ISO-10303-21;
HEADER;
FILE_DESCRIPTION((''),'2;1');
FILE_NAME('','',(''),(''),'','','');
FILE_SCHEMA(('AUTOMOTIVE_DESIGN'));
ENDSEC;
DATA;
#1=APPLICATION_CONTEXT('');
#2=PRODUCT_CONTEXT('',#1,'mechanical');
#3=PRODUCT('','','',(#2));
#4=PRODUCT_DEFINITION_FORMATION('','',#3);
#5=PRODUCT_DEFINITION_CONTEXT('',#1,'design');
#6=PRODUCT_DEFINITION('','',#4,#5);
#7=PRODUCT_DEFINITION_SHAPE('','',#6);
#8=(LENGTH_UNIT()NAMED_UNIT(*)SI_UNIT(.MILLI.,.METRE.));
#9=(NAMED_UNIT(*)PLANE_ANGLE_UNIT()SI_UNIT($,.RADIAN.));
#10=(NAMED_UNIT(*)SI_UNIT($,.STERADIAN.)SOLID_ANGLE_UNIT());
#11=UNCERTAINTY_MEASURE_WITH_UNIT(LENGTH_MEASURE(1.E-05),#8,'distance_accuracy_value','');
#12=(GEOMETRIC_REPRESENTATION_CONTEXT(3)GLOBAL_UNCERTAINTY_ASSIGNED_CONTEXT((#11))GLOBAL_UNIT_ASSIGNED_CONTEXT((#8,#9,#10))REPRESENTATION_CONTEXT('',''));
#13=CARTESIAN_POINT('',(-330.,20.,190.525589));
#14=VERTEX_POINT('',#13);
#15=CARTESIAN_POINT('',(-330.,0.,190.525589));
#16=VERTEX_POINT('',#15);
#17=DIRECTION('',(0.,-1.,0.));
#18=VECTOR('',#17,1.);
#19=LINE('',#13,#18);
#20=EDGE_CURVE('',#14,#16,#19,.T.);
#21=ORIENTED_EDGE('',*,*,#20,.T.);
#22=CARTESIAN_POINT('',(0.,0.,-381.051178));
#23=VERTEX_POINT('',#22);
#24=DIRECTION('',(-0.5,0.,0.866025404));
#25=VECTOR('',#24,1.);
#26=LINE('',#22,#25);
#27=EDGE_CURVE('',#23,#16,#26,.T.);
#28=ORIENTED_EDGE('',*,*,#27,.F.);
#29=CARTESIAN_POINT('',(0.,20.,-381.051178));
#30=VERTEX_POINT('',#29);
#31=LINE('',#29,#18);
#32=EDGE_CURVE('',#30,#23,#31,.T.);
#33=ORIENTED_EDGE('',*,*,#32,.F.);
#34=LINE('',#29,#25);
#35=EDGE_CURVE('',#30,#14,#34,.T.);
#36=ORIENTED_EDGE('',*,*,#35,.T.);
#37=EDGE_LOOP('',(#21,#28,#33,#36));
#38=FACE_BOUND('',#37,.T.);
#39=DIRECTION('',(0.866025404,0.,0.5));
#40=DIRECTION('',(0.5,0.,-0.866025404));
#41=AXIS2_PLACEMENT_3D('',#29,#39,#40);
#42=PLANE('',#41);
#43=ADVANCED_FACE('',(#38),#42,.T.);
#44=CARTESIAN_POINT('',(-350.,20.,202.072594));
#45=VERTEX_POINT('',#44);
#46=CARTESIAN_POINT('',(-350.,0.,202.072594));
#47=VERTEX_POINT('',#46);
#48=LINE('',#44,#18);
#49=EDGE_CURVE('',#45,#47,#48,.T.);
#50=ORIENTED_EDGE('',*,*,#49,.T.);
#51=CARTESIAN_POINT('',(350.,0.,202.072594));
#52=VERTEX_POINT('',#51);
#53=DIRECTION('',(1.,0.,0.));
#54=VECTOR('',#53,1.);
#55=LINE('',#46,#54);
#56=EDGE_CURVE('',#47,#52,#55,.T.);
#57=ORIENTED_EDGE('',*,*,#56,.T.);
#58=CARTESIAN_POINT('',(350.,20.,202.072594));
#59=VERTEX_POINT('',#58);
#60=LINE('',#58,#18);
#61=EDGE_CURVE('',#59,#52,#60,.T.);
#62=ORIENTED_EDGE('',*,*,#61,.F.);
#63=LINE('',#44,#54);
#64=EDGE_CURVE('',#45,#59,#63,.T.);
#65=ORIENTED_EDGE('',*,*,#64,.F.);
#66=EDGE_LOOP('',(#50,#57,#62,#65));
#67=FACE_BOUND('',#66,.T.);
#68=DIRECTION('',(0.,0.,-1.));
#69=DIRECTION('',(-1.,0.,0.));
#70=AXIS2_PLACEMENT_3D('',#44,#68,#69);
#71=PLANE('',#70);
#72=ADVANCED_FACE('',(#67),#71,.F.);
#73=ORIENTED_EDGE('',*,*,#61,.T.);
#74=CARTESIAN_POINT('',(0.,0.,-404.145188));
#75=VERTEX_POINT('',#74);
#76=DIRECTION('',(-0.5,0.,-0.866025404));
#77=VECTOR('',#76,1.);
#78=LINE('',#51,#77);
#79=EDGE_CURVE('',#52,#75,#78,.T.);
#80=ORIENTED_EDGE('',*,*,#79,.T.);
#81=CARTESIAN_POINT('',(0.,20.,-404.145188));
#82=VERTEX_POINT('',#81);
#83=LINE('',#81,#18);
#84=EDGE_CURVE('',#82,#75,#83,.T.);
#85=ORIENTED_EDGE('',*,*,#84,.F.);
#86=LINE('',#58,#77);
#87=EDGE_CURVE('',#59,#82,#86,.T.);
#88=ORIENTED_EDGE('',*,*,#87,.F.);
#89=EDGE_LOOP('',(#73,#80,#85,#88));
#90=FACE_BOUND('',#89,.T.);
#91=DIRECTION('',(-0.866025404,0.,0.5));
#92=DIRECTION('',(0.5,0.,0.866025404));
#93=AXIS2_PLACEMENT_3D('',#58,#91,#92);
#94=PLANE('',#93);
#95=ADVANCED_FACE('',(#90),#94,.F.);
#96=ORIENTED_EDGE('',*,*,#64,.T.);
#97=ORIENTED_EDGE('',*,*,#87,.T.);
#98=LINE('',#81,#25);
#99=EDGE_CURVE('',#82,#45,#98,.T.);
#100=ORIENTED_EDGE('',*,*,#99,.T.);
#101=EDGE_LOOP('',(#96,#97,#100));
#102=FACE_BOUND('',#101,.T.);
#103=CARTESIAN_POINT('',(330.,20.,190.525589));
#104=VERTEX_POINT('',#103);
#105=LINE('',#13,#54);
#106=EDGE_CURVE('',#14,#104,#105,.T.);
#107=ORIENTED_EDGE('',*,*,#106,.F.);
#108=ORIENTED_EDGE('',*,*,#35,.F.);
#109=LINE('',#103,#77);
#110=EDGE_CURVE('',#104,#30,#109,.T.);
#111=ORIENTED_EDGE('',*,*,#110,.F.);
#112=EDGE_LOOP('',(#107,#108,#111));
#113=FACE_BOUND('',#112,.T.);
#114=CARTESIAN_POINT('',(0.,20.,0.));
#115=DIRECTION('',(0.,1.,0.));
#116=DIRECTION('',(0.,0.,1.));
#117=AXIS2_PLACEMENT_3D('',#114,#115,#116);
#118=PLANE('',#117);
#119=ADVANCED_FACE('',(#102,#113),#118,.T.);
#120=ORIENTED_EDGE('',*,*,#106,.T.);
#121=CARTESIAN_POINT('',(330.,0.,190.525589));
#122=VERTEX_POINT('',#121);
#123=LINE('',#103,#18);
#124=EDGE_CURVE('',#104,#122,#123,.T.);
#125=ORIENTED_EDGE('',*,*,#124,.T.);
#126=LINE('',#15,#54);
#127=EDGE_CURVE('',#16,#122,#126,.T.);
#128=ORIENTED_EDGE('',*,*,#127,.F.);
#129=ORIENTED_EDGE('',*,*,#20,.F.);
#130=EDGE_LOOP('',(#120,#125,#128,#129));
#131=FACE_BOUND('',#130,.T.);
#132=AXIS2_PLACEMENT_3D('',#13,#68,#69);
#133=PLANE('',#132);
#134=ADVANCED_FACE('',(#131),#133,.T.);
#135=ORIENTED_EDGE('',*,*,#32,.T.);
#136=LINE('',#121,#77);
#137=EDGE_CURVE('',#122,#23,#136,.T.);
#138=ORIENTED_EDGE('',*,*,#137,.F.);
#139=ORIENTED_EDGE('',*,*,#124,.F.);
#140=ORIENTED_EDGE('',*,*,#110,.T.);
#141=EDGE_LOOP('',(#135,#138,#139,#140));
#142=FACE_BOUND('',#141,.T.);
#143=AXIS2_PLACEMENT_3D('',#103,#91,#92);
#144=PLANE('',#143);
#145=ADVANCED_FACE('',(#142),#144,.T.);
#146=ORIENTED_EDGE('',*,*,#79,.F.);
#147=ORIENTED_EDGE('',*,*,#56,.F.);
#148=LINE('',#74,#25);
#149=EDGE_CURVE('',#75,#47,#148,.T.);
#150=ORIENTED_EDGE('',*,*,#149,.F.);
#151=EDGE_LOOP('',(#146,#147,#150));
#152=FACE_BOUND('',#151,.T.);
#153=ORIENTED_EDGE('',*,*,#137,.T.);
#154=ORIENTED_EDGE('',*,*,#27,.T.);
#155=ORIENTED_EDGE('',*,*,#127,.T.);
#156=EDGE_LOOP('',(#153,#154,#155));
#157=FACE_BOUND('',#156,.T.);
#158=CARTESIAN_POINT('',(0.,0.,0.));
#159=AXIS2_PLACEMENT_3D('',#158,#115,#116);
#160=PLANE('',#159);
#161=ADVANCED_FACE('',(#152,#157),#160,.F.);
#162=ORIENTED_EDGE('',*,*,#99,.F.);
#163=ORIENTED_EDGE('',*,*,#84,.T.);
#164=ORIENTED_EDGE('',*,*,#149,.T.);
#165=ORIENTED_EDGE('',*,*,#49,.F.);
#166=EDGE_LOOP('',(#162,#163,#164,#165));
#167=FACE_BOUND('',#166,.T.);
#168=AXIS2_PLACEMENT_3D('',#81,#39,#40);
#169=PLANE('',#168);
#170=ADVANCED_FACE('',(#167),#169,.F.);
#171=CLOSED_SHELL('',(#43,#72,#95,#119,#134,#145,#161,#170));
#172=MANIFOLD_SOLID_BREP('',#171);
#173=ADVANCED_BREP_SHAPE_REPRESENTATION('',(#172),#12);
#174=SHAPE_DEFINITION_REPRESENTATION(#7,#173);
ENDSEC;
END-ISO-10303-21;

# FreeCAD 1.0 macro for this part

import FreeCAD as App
import Part
import Sketcher

V = App.Vector
Q = App.Units.Quantity

doc = App.newDocument("Part")
params = doc.addObject("Spreadsheet::Sheet", "Params")
for row, (alias, value) in enumerate([
    ("sketch1_width", "700 mm"),
    ("sketch1_width2", "660 mm"),
    ("pad1_length", "20 mm"),
], start=1):
    params.set(f"A{row}", alias)
    params.set(f"B{row}", "=" + value)
    params.setAlias(f"B{row}", alias)

body = doc.addObject("PartDesign::Body", "Body")

# Sketch on XZ plane
sketch1 = doc.addObject("Sketcher::SketchObject", "Sketch")
body.addObject(sketch1)
sketch1.AttachmentSupport = (doc.XZ_Plane, [""])
sketch1.MapMode = "FlatFace"
sketch1.addGeometry(Part.LineSegment(V(0, -404, 0), V(-350, 202, 0)), False)
sketch1.addGeometry(Part.LineSegment(V(-350, 202, 0), V(350, 202, 0)), False)
sketch1.addGeometry(Part.LineSegment(V(350, 202, 0), V(0, -404, 0)), False)
sketch1.addGeometry(Part.LineSegment(V(-330, 191, 0), V(0, -381, 0)), False)
sketch1.addGeometry(Part.LineSegment(V(0, -381, 0), V(330, 191, 0)), False)
sketch1.addGeometry(Part.LineSegment(V(330, 191, 0), V(-330, 191, 0)), False)
sketch1.addConstraint(Sketcher.Constraint("Coincident", 0, 2, 1, 1))
sketch1.addConstraint(Sketcher.Constraint("Coincident", 1, 2, 2, 1))
sketch1.addConstraint(Sketcher.Constraint("Coincident", 2, 2, 0, 1))
sketch1.addConstraint(Sketcher.Constraint("Coincident", 3, 2, 4, 1))
sketch1.addConstraint(Sketcher.Constraint("Coincident", 4, 2, 5, 1))
sketch1.addConstraint(Sketcher.Constraint("Coincident", 5, 2, 3, 1))
sketch1.addConstraint(Sketcher.Constraint("Horizontal", 1))
sketch1.addConstraint(Sketcher.Constraint("Horizontal", 5))
sketch1.addConstraint(Sketcher.Constraint("PointOnObject", 2, 2, -2))
sketch1.addConstraint(Sketcher.Constraint("PointOnObject", 3, 2, -2))
sketch1.addConstraint(Sketcher.Constraint("Parallel", 0, 3))
sketch1.addConstraint(Sketcher.Constraint("Parallel", 2, 4))
sketch1.addConstraint(Sketcher.Constraint("Equal", 0, 2))
sketch1.addConstraint(Sketcher.Constraint("DistanceX", 1, 1, 1, 2, Q("700 mm")))
sketch1.addConstraint(Sketcher.Constraint("DistanceX", 5, 2, 5, 1, Q("660 mm")))
sketch1.addConstraint(Sketcher.Constraint("Angle", 0, Q("120 deg")))
sketch1.addConstraint(Sketcher.Constraint("DistanceY", 2, 2, -1, 1, Q("404.145188 mm")))
sketch1.addConstraint(Sketcher.Constraint("DistanceY", -1, 1, 4, 2, Q("190.525589 mm")))
sketch1.setExpression("Constraints[13]", "Params.sketch1_width")
sketch1.setExpression("Constraints[14]", "Params.sketch1_width2")
pad1 = doc.addObject("PartDesign::Pad", "Pad")
body.addObject(pad1)
pad1.Profile = sketch1
pad1.setExpression("Length", "Params.pad1_length")
pad1.Reversed = True

doc.recompute()
